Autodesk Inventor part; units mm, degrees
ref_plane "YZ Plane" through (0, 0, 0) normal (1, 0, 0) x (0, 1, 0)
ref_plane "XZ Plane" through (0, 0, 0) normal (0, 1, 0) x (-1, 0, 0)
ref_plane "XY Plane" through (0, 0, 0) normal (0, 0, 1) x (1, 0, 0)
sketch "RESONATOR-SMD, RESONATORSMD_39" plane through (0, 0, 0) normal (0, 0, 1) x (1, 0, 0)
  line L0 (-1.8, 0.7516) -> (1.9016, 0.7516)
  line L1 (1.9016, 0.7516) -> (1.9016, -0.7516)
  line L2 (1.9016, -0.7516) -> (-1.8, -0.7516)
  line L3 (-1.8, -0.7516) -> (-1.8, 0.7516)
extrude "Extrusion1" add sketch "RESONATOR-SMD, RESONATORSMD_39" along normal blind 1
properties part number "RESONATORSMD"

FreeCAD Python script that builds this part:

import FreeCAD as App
import Part
import Sketcher
from FreeCAD import Vector
Q = App.Units.Quantity

doc = App.newDocument("Part")
body = doc.addObject("PartDesign::Body", "Body")

sketch1 = body.newObject("Sketcher::SketchObject", "Sketch")
sketch1.AttachmentSupport = (doc.getObject("XY_Plane"), [""])
sketch1.MapMode = "FlatFace"
sketch1.addGeometry([
    Part.LineSegment(Vector(1.9, 0.8, 0), Vector(-1.8, 0.8, 0)),
    Part.LineSegment(Vector(-1.8, 0.8, 0), Vector(-1.8, -0.8, 0)),
    Part.LineSegment(Vector(-1.8, -0.8, 0), Vector(1.9, -0.8, 0)),
    Part.LineSegment(Vector(1.9, -0.8, 0), Vector(1.9, 0.8, 0)),
], False)
sketch1.addConstraint([
    Sketcher.Constraint("Coincident", 0, 2, 1, 1),
    Sketcher.Constraint("Coincident", 1, 2, 2, 1),
    Sketcher.Constraint("Coincident", 2, 2, 3, 1),
    Sketcher.Constraint("Coincident", 3, 2, 0, 1),
    Sketcher.Constraint("Horizontal", 0),
    Sketcher.Constraint("Vertical", 1),
    Sketcher.Constraint("Horizontal", 2),
    Sketcher.Constraint("Vertical", 3),
    Sketcher.Constraint("DistanceX", 0, 2, -1, 1, Q("1.8 mm")),
    Sketcher.Constraint("DistanceX", 0, 2, 0, 1, Q("3.7016 mm")),
    Sketcher.Constraint("DistanceY", 1, 2, 1, 1, Q("1.5032 mm")),
    Sketcher.Constraint("DistanceY", -1, 1, 0, 2, Q("0.7516 mm")),
])
pad1 = body.newObject("PartDesign::Pad", "Pad")
pad1.Profile = sketch1
pad1.Length = 1

doc.recompute()
